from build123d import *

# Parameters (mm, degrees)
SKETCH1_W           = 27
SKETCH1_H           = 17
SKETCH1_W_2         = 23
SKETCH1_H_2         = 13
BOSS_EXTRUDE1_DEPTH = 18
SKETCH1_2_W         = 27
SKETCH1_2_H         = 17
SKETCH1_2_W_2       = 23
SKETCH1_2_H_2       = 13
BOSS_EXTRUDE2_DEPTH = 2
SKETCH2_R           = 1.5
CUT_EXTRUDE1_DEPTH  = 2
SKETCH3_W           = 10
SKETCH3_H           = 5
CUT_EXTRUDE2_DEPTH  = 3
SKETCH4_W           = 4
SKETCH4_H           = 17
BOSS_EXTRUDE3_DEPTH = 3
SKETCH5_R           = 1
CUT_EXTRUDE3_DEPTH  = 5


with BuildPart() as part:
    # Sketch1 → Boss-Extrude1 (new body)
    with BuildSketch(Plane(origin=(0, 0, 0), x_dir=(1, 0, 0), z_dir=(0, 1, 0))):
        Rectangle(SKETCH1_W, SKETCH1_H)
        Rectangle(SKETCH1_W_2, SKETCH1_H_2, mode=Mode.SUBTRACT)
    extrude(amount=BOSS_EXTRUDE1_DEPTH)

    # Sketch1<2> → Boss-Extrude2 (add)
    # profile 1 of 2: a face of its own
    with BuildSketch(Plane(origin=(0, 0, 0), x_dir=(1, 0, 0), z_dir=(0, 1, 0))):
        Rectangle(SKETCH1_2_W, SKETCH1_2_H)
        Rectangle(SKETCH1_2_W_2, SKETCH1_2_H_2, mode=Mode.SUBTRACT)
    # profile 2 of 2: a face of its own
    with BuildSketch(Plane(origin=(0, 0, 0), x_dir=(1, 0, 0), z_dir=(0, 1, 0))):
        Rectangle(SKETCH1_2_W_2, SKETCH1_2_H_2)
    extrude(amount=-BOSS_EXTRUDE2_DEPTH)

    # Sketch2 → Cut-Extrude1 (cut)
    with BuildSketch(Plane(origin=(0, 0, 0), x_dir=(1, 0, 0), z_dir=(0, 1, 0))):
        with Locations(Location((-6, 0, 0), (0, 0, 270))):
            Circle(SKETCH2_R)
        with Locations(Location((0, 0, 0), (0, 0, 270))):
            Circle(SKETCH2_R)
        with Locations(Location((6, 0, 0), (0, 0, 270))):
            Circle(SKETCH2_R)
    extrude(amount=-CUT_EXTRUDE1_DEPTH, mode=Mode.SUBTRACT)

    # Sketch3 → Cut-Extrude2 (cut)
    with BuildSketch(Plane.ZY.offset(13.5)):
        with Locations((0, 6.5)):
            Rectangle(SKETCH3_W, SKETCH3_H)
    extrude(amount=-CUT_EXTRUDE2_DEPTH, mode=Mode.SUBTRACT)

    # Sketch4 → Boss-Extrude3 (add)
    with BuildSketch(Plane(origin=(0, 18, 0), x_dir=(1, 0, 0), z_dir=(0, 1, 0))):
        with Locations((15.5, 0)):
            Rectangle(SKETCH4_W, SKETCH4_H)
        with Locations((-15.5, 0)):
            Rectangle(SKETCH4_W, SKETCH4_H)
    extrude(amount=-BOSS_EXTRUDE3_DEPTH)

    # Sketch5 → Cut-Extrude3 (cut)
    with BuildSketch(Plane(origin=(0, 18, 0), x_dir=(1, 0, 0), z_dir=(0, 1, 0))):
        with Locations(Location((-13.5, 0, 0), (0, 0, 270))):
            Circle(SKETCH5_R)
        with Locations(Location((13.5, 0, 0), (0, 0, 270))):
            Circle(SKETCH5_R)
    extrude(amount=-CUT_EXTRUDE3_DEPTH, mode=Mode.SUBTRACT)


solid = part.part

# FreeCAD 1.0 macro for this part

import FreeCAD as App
import Part
import Sketcher

V = App.Vector
Q = App.Units.Quantity


def add_polygon(sketch, points):
    """Adds a closed chain of lines whose ends are joined by coincident constraints."""
    first, n = sketch.GeometryCount, len(points)
    for a, b in zip(points, points[1:] + points[:1]):
        sketch.addGeometry(Part.LineSegment(App.Vector(*a, 0), App.Vector(*b, 0)), False)
    for i in range(n):
        sketch.addConstraint(Sketcher.Constraint("Coincident", first + i, 2, first + (i + 1) % n, 1))

doc = App.newDocument("Part")
body = doc.addObject("PartDesign::Body", "Body")

# Sketch on XZ plane
sketch1 = body.newObject("Sketcher::SketchObject", "Sketch")
sketch1.AttachmentSupport = (doc.getObject("XZ_Plane"), [""])
sketch1.MapMode = "FlatFace"
add_polygon(sketch1, [(-13.5, -8.5), (-13.5, 8.5), (13.5, 8.5), (13.5, -8.5)])  # lines 0-3
add_polygon(sketch1, [(11.5, 6.5), (-11.5, 6.5), (-11.5, -6.5), (11.5, -6.5)])  # lines 4-7
sketch1.addConstraint([
    Sketcher.Constraint("Vertical", 0),
    Sketcher.Constraint("Horizontal", 1),
    Sketcher.Constraint("Vertical", 2),
    Sketcher.Constraint("Horizontal", 3),
    Sketcher.Constraint("Horizontal", 4),
    Sketcher.Constraint("Vertical", 5),
    Sketcher.Constraint("Horizontal", 6),
    Sketcher.Constraint("Vertical", 7),
    Sketcher.Constraint("Symmetric", 0, 2, 2, 2, -1, 1),
    Sketcher.Constraint("Symmetric", 4, 2, 6, 2, -1, 1),
    Sketcher.Constraint("DistanceX", 1, 1, 1, 2, Q("27 mm")),
    Sketcher.Constraint("DistanceX", 4, 2, 4, 1, Q("23 mm")),
    Sketcher.Constraint("DistanceY", 0, 1, 0, 2, Q("17 mm")),
    Sketcher.Constraint("DistanceY", 5, 2, 5, 1, Q("13 mm")),
])
pad1 = body.newObject("PartDesign::Pad", "Pad")
pad1.Profile = sketch1
pad1.Length = 18
pad1.Reversed = True

# Sketch on XZ plane
sketch2 = body.newObject("Sketcher::SketchObject", "Sketch001")
sketch2.AttachmentSupport = (doc.getObject("XZ_Plane"), [""])
sketch2.MapMode = "FlatFace"
add_polygon(sketch2, [(-13.5, -8.5), (-13.5, 8.5), (13.5, 8.5), (13.5, -8.5)])  # lines 0-3
sketch2.addConstraint([
    Sketcher.Constraint("Vertical", 0),
    Sketcher.Constraint("Horizontal", 1),
    Sketcher.Constraint("Vertical", 2),
    Sketcher.Constraint("Horizontal", 3),
    Sketcher.Constraint("Symmetric", 0, 2, 2, 2, -1, 1),
    Sketcher.Constraint("DistanceX", 1, 1, 1, 2, Q("27 mm")),
    Sketcher.Constraint("DistanceY", 0, 1, 0, 2, Q("17 mm")),
])
pad2 = body.newObject("PartDesign::Pad", "Pad001")
pad2.Profile = sketch2
pad2.Length = 2

# Sketch on XZ plane
sketch3 = body.newObject("Sketcher::SketchObject", "Sketch002")
sketch3.AttachmentSupport = (doc.getObject("XZ_Plane"), [""])
sketch3.MapMode = "FlatFace"
sketch3.addGeometry([
    Part.Circle(V(-6, 0, 0), V(0, 0, 1), 1.5),
    Part.Circle(V(0, 0, 0), V(0, 0, 1), 1.5),
    Part.Circle(V(6, 0, 0), V(0, 0, 1), 1.5),
], False)
sketch3.addConstraint([
    Sketcher.Constraint("Coincident", 1, 3, -1, 1),
    Sketcher.Constraint("Equal", 0, 1),
    Sketcher.Constraint("Equal", 1, 2),
    Sketcher.Constraint("Symmetric", 0, 3, 2, 3, -1, 1),
    Sketcher.Constraint("PointOnObject", 0, 3, -1),
    Sketcher.Constraint("Diameter", 0, Q("3 mm")),
    Sketcher.Constraint("DistanceX", 0, 3, -1, 1, Q("6 mm")),
])
pocket1 = body.newObject("PartDesign::Pocket", "Pocket")
pocket1.Profile = sketch3
pocket1.Length = 2
pocket1.Reversed = True

# Sketch on YZ plane
sketch4 = body.newObject("Sketcher::SketchObject", "Sketch003")
sketch4.AttachmentSupport = (doc.getObject("YZ_Plane"), [""])
sketch4.MapMode = "FlatFace"
sketch4.AttachmentOffset = App.Placement(V(0, 0, -13.5), App.Rotation())
add_polygon(sketch4, [(9, -5), (4, -5), (4, 5), (9, 5)])  # lines 0-3
sketch4.addConstraint([
    Sketcher.Constraint("Horizontal", 0),
    Sketcher.Constraint("Vertical", 1),
    Sketcher.Constraint("Horizontal", 2),
    Sketcher.Constraint("Vertical", 3),
    Sketcher.Constraint("DistanceX", 0, 2, 0, 1, Q("5 mm")),
    Sketcher.Constraint("DistanceY", 1, 1, 1, 2, Q("10 mm")),
    Sketcher.Constraint("DistanceX", -1, 1, 0, 2, Q("4 mm")),
    Sketcher.Constraint("DistanceY", 0, 2, -1, 1, Q("5 mm")),
])
pocket2 = body.newObject("PartDesign::Pocket", "Pocket001")
pocket2.Profile = sketch4
pocket2.Length = 3
pocket2.Reversed = True

# Sketch on XZ plane
sketch5 = body.newObject("Sketcher::SketchObject", "Sketch004")
sketch5.AttachmentSupport = (doc.getObject("XZ_Plane"), [""])
sketch5.MapMode = "FlatFace"
sketch5.AttachmentOffset = App.Placement(V(0, 0, -18), App.Rotation())
add_polygon(sketch5, [(13.5, -8.5), (13.5, 8.5), (17.5, 8.5), (17.5, -8.5)])  # lines 0-3
add_polygon(sketch5, [(-17.5, -8.5), (-17.5, 8.5), (-13.5, 8.5), (-13.5, -8.5)])  # lines 4-7
sketch5.addConstraint([
    Sketcher.Constraint("Vertical", 0),
    Sketcher.Constraint("Horizontal", 1),
    Sketcher.Constraint("Vertical", 2),
    Sketcher.Constraint("Horizontal", 3),
    Sketcher.Constraint("Vertical", 4),
    Sketcher.Constraint("Horizontal", 5),
    Sketcher.Constraint("Vertical", 6),
    Sketcher.Constraint("Horizontal", 7),
    Sketcher.Constraint("Symmetric", 2, 2, 4, 2, -1, 1),
    Sketcher.Constraint("Symmetric", 0, 2, 6, 2, -1, 1),
    Sketcher.Constraint("Horizontal", 1, 2, 4, 2),
    Sketcher.Constraint("DistanceX", 1, 1, 1, 2, Q("4 mm")),
    Sketcher.Constraint("DistanceY", 0, 1, 0, 2, Q("17 mm")),
    Sketcher.Constraint("DistanceX", 4, 2, 0, 2, Q("31 mm")),
])
pad3 = body.newObject("PartDesign::Pad", "Pad002")
pad3.Profile = sketch5
pad3.Length = 3

# Sketch on XZ plane
sketch6 = body.newObject("Sketcher::SketchObject", "Sketch005")
sketch6.AttachmentSupport = (doc.getObject("XZ_Plane"), [""])
sketch6.MapMode = "FlatFace"
sketch6.AttachmentOffset = App.Placement(V(0, 0, -18), App.Rotation())
sketch6.addGeometry([
    Part.Circle(V(-13.5, 0, 0), V(0, 0, 1), 1),
    Part.Circle(V(13.5, 0, 0), V(0, 0, 1), 1),
], False)
sketch6.addConstraint([
    Sketcher.Constraint("Equal", 0, 1),
    Sketcher.Constraint("Symmetric", 0, 3, 1, 3, -1, 1),
    Sketcher.Constraint("PointOnObject", 0, 3, -1),
    Sketcher.Constraint("Diameter", 0, Q("2 mm")),
    Sketcher.Constraint("DistanceX", 0, 3, 1, 3, Q("27 mm")),
])
pocket3 = body.newObject("PartDesign::Pocket", "Pocket002")
pocket3.Profile = sketch6
pocket3.Length = 5
pocket3.Reversed = True

doc.recompute()
